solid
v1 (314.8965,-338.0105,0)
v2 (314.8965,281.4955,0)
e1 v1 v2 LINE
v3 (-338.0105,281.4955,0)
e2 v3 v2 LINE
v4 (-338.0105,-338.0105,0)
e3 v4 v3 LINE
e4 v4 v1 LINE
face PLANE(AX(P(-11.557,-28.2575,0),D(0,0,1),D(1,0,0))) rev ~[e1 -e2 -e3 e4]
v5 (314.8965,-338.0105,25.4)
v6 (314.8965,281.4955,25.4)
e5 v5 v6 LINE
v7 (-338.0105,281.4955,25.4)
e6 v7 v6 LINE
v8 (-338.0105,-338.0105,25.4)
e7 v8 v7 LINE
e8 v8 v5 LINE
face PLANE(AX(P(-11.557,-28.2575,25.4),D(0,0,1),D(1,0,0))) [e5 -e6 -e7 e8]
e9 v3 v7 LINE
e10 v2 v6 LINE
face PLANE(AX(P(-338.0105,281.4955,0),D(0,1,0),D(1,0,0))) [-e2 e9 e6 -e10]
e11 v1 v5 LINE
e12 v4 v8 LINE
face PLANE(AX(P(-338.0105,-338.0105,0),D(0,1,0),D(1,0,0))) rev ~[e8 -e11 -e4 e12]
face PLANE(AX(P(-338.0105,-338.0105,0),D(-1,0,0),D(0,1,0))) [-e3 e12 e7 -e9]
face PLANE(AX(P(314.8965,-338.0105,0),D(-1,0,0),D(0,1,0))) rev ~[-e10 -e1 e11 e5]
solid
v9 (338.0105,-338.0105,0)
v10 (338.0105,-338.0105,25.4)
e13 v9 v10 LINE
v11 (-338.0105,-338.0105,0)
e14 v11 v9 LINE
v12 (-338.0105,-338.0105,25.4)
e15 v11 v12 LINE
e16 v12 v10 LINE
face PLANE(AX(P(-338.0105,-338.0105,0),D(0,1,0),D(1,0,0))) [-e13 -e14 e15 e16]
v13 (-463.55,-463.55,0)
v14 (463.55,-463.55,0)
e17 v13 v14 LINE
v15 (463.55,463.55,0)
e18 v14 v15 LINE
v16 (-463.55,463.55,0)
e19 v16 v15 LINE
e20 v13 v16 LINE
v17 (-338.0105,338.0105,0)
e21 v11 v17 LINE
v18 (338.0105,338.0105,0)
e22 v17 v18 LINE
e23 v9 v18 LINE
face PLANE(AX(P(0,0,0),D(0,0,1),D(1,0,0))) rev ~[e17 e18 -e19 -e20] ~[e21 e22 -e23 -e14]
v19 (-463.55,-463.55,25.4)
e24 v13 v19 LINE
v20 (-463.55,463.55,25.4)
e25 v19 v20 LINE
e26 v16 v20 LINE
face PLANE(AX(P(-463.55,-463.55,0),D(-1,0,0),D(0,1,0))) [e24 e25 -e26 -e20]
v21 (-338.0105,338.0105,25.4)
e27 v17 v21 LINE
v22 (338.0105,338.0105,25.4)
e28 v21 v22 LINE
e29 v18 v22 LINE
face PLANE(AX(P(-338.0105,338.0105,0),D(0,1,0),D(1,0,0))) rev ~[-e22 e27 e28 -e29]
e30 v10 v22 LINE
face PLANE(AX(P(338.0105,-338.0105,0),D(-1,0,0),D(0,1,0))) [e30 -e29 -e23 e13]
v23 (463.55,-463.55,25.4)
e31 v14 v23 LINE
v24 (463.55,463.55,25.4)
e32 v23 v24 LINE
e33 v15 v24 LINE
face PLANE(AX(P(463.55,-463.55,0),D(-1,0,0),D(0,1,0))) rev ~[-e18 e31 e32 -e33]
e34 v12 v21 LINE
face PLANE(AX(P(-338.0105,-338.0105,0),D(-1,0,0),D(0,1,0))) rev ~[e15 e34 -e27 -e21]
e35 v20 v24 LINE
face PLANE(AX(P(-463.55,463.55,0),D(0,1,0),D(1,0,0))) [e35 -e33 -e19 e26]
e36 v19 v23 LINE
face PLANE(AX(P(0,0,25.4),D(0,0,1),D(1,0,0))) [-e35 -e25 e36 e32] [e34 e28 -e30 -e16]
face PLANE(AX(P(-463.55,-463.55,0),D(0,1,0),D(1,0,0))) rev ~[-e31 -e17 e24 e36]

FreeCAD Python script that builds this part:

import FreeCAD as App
import Part
import Sketcher
Q = App.Units.Quantity

doc = App.newDocument("Part")
body = doc.addObject("PartDesign::Body", "Body")

# Sketch on XY plane
sketch1 = body.newObject("Sketcher::SketchObject", "Sketch")
sketch1.AttachmentSupport = (doc.getObject("XY_Plane"), [""])
sketch1.MapMode = "FlatFace"
sketch1.addGeometry([
    Part.LineSegment(App.Vector(-464, 464, 0), App.Vector(-464, -464, 0)),  # 0
    Part.LineSegment(App.Vector(-464, -464, 0), App.Vector(464, -464, 0)),  # 1
    Part.LineSegment(App.Vector(464, -464, 0), App.Vector(464, 464, 0)),  # 2
    Part.LineSegment(App.Vector(464, 464, 0), App.Vector(-464, 464, 0)),  # 3
    Part.LineSegment(App.Vector(338, -338, 0), App.Vector(-338, -338, 0)),  # 4
    Part.LineSegment(App.Vector(-338, -338, 0), App.Vector(-338, 338, 0)),  # 5
    Part.LineSegment(App.Vector(-338, 338, 0), App.Vector(338, 338, 0)),  # 6
    Part.LineSegment(App.Vector(338, 338, 0), App.Vector(338, -338, 0)),  # 7
], False)
sketch1.addConstraint([
    Sketcher.Constraint("Coincident", 0, 2, 1, 1),
    Sketcher.Constraint("Coincident", 1, 2, 2, 1),
    Sketcher.Constraint("Coincident", 2, 2, 3, 1),
    Sketcher.Constraint("Coincident", 3, 2, 0, 1),
    Sketcher.Constraint("Coincident", 4, 2, 5, 1),
    Sketcher.Constraint("Coincident", 5, 2, 6, 1),
    Sketcher.Constraint("Coincident", 6, 2, 7, 1),
    Sketcher.Constraint("Coincident", 7, 2, 4, 1),
    Sketcher.Constraint("Vertical", 0),
    Sketcher.Constraint("Horizontal", 1),
    Sketcher.Constraint("Vertical", 2),
    Sketcher.Constraint("Horizontal", 3),
    Sketcher.Constraint("Horizontal", 4),
    Sketcher.Constraint("Vertical", 5),
    Sketcher.Constraint("Horizontal", 6),
    Sketcher.Constraint("Vertical", 7),
    Sketcher.Constraint("Symmetric", 0, 2, 2, 2, -1, 1),
    Sketcher.Constraint("Symmetric", 4, 2, 6, 2, -1, 1),
    Sketcher.Constraint("Equal", 3, 0),
    Sketcher.Constraint("Equal", 6, 5),
    Sketcher.Constraint("DistanceX", 1, 1, 1, 2, Q("36.5 in")),
    Sketcher.Constraint("DistanceX", 4, 2, 4, 1, Q("26.615 in")),
])
pad1 = body.newObject("PartDesign::Pad", "Pad")
pad1.Profile = sketch1
pad1.Length = Q("1 in")
body2 = doc.addObject("PartDesign::Body", "Body001")

# Sketch on XY plane
sketch2 = body2.newObject("Sketcher::SketchObject", "Sketch001")
sketch2.AttachmentSupport = (doc.getObject("XY_Plane001"), [""])
sketch2.MapMode = "FlatFace"
sketch2.addGeometry([
    Part.LineSegment(App.Vector(-338, 281, 0), App.Vector(-338, -338, 0)),
    Part.LineSegment(App.Vector(-338, -338, 0), App.Vector(315, -338, 0)),
    Part.LineSegment(App.Vector(315, -338, 0), App.Vector(315, 281, 0)),
    Part.LineSegment(App.Vector(315, 281, 0), App.Vector(-338, 281, 0)),
], False)
sketch2.addConstraint([
    Sketcher.Constraint("Coincident", 0, 2, 1, 1),
    Sketcher.Constraint("Coincident", 1, 2, 2, 1),
    Sketcher.Constraint("Coincident", 2, 2, 3, 1),
    Sketcher.Constraint("Coincident", 3, 2, 0, 1),
    Sketcher.Constraint("Vertical", 0),
    Sketcher.Constraint("Horizontal", 1),
    Sketcher.Constraint("Vertical", 2),
    Sketcher.Constraint("Horizontal", 3),
    Sketcher.Constraint("DistanceY", 0, 2, 0, 1, Q("24.39 in")),
    Sketcher.Constraint("DistanceX", 1, 1, 1, 2, Q("25.705 in")),
    Sketcher.Constraint("DistanceX", 0, 2, -1, 1, Q("13.3075 in")),
    Sketcher.Constraint("DistanceY", 0, 2, -1, 1, Q("13.3075 in")),
])
pad2 = body2.newObject("PartDesign::Pad", "Pad001")
pad2.Profile = sketch2
pad2.Length = Q("1 in")

doc.recompute()
